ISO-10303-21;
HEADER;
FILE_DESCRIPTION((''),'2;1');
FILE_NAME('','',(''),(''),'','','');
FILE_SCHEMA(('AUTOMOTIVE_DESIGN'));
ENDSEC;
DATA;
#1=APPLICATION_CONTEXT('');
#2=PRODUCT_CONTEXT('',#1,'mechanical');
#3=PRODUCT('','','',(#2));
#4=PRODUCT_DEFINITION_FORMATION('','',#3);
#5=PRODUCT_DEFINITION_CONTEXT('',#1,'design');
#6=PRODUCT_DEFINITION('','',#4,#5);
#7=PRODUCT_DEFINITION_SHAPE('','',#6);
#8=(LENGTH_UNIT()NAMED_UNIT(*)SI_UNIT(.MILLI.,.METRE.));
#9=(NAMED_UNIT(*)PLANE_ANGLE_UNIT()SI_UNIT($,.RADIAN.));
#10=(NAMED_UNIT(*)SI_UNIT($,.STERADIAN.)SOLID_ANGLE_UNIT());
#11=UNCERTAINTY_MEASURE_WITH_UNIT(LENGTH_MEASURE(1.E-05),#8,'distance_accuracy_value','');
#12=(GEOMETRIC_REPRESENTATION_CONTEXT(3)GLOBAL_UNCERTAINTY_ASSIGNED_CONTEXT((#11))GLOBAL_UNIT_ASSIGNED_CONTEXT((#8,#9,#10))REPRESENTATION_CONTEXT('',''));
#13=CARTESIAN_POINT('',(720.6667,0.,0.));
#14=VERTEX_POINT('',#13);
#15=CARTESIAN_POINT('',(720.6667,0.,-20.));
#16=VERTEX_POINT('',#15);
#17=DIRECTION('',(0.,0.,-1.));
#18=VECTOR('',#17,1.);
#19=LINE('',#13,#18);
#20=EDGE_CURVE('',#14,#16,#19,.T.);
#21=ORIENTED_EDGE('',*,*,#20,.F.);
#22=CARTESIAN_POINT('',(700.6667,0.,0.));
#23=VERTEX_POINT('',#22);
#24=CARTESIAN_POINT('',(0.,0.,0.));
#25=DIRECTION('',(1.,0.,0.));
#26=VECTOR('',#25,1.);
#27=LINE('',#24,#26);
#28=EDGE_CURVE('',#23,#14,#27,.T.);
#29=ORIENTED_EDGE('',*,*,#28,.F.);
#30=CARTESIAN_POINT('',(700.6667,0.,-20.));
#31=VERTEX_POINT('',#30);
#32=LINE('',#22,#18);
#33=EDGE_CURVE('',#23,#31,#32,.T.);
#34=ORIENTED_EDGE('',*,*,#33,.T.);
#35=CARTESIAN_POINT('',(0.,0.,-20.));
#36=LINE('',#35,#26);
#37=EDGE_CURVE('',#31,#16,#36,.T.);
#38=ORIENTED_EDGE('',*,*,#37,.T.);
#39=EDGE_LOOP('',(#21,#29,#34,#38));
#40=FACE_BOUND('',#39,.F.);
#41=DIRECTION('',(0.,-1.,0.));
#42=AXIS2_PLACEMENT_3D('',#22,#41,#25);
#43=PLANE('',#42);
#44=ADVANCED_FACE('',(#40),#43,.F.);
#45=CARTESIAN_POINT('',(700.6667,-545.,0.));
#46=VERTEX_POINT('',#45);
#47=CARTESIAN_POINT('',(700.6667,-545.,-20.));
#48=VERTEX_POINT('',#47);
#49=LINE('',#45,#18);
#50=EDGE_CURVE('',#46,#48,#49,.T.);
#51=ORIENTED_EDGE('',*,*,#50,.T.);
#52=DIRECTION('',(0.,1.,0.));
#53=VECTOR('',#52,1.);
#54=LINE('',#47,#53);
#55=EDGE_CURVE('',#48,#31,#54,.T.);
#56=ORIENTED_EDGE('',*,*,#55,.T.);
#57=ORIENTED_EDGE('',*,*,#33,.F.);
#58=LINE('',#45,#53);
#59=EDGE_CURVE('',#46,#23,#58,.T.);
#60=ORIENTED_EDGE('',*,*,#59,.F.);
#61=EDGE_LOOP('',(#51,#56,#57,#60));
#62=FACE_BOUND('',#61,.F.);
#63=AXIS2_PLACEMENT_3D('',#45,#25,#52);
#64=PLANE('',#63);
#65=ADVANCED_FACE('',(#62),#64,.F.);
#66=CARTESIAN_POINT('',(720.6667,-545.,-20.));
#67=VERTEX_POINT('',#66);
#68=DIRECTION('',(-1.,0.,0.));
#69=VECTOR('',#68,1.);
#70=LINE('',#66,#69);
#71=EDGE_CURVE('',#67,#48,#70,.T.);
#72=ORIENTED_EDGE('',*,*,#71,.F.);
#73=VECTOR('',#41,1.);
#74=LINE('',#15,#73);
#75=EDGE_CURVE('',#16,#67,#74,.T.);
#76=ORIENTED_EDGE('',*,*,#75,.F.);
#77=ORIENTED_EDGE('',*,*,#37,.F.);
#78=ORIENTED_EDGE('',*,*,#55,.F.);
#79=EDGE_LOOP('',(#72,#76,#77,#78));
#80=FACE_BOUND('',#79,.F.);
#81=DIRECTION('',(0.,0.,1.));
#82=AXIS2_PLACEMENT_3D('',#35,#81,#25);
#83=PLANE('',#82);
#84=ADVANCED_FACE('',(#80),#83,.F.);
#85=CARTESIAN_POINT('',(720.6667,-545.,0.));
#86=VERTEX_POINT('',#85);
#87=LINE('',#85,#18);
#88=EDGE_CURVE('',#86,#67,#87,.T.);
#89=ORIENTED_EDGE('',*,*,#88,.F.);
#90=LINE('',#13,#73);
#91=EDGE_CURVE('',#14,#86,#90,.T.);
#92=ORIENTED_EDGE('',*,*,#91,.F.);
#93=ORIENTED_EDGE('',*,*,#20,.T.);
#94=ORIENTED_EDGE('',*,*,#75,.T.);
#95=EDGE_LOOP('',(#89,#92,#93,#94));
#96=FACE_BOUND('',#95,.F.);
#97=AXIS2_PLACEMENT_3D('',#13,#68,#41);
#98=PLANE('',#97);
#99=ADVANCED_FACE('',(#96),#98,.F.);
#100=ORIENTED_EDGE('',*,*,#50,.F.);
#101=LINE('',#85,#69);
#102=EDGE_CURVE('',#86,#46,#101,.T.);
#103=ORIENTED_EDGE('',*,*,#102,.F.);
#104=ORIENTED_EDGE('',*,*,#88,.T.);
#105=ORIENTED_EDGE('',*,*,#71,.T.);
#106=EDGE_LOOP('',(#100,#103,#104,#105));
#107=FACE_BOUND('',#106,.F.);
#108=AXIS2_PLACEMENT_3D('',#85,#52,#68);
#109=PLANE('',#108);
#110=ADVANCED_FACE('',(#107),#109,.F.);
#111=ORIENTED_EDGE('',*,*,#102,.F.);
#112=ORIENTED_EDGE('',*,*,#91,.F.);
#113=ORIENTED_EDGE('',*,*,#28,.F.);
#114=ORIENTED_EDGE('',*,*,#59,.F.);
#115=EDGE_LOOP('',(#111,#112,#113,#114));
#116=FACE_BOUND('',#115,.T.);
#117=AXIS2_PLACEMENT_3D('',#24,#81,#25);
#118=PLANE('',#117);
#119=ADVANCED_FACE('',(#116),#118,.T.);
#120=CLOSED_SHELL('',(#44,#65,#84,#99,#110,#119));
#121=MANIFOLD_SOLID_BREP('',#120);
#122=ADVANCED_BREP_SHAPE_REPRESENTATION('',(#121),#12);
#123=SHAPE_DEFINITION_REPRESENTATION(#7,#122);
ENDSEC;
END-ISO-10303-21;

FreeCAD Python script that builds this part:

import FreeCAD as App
import Part
import Sketcher
Q = App.Units.Quantity


def add_polygon(sketch, points):
    """Adds a closed chain of lines whose ends are joined by coincident constraints."""
    first, n = sketch.GeometryCount, len(points)
    for a, b in zip(points, points[1:] + points[:1]):
        sketch.addGeometry(Part.LineSegment(App.Vector(*a, 0), App.Vector(*b, 0)), False)
    for i in range(n):
        sketch.addConstraint(Sketcher.Constraint("Coincident", first + i, 2, first + (i + 1) % n, 1))

doc = App.newDocument("Part")
body = doc.addObject("PartDesign::Body", "Body")

# Sketch on XY plane
sketch1 = body.newObject("Sketcher::SketchObject", "Sketch")
sketch1.AttachmentSupport = (doc.getObject("XY_Plane"), [""])
sketch1.MapMode = "FlatFace"
add_polygon(sketch1, [(721, 0), (701, 0), (701, -545), (721, -545)])  # lines 0-3
sketch1.addConstraint([
    Sketcher.Constraint("Horizontal", 0),
    Sketcher.Constraint("Vertical", 1),
    Sketcher.Constraint("Horizontal", 2),
    Sketcher.Constraint("Vertical", 3),
    Sketcher.Constraint("PointOnObject", 0, 2, -1),
    Sketcher.Constraint("DistanceX", 0, 2, 0, 1, Q("20 mm")),
    Sketcher.Constraint("DistanceY", 1, 2, 1, 1, Q("545 mm")),
    Sketcher.Constraint("DistanceX", -1, 1, 0, 2, Q("700.6667 mm")),
])
pad1 = body.newObject("PartDesign::Pad", "Pad")
pad1.Profile = sketch1
pad1.Length = 20
pad1.Reversed = True

doc.recompute()
